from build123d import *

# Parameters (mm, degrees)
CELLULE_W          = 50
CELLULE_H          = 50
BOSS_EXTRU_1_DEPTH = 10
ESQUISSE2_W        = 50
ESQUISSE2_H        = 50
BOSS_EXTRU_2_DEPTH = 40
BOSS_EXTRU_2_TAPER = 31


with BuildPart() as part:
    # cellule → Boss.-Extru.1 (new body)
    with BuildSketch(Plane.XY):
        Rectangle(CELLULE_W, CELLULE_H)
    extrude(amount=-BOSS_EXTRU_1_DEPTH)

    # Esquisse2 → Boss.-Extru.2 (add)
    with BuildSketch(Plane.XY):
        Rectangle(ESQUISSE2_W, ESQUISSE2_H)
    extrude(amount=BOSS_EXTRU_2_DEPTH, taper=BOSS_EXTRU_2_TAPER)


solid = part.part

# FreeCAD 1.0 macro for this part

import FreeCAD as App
import Part
import Sketcher

V = App.Vector
Q = App.Units.Quantity

doc = App.newDocument("Part")
body = doc.addObject("PartDesign::Body", "Body")

sketch1 = body.newObject("Sketcher::SketchObject", "Sketch")
sketch1.AttachmentSupport = (doc.getObject("XY_Plane"), [""])
sketch1.MapMode = "FlatFace"
sketch1.addGeometry(Part.LineSegment(V(-25, 25, 0), V(-25, -25, 0)), False)
sketch1.addGeometry(Part.LineSegment(V(-25, -25, 0), V(25, -25, 0)), False)
sketch1.addGeometry(Part.LineSegment(V(25, -25, 0), V(25, 25, 0)), False)
sketch1.addGeometry(Part.LineSegment(V(25, 25, 0), V(-25, 25, 0)), False)
sketch1.addConstraint(Sketcher.Constraint("Coincident", 0, 2, 1, 1))
sketch1.addConstraint(Sketcher.Constraint("Coincident", 1, 2, 2, 1))
sketch1.addConstraint(Sketcher.Constraint("Coincident", 2, 2, 3, 1))
sketch1.addConstraint(Sketcher.Constraint("Coincident", 3, 2, 0, 1))
sketch1.addConstraint(Sketcher.Constraint("Vertical", 0))
sketch1.addConstraint(Sketcher.Constraint("Horizontal", 1))
sketch1.addConstraint(Sketcher.Constraint("Vertical", 2))
sketch1.addConstraint(Sketcher.Constraint("Horizontal", 3))
sketch1.addConstraint(Sketcher.Constraint("Symmetric", 0, 2, 2, 2, -1, 1))
sketch1.addConstraint(Sketcher.Constraint("Equal", 3, 0))
sketch1.addConstraint(Sketcher.Constraint("DistanceX", 1, 1, 1, 2, Q("50 mm")))
pad1 = body.newObject("PartDesign::Pad", "Pad")
pad1.Profile = sketch1
pad1.Length = 10
pad1.Reversed = True

sketch2 = body.newObject("Sketcher::SketchObject", "Sketch001")
sketch2.AttachmentSupport = (doc.getObject("XY_Plane"), [""])
sketch2.MapMode = "FlatFace"
sketch2.addGeometry(Part.LineSegment(V(-25, 25, 0), V(-25, -25, 0)), False)
sketch2.addGeometry(Part.LineSegment(V(-25, -25, 0), V(25, -25, 0)), False)
sketch2.addGeometry(Part.LineSegment(V(25, -25, 0), V(25, 25, 0)), False)
sketch2.addGeometry(Part.LineSegment(V(25, 25, 0), V(-25, 25, 0)), False)
sketch2.addConstraint(Sketcher.Constraint("Coincident", 0, 2, 1, 1))
sketch2.addConstraint(Sketcher.Constraint("Coincident", 1, 2, 2, 1))
sketch2.addConstraint(Sketcher.Constraint("Coincident", 2, 2, 3, 1))
sketch2.addConstraint(Sketcher.Constraint("Coincident", 3, 2, 0, 1))
sketch2.addConstraint(Sketcher.Constraint("Vertical", 0))
sketch2.addConstraint(Sketcher.Constraint("Horizontal", 1))
sketch2.addConstraint(Sketcher.Constraint("Vertical", 2))
sketch2.addConstraint(Sketcher.Constraint("Horizontal", 3))
sketch2.addConstraint(Sketcher.Constraint("Symmetric", 0, 2, 2, 2, -1, 1))
sketch2.addConstraint(Sketcher.Constraint("Equal", 3, 0))
sketch2.addConstraint(Sketcher.Constraint("DistanceX", 1, 1, 1, 2, Q("50 mm")))
pad2 = body.newObject("PartDesign::Pad", "Pad001")
pad2.Profile = sketch2
pad2.Length = 40
pad2.TaperAngle = -31

doc.recompute()
